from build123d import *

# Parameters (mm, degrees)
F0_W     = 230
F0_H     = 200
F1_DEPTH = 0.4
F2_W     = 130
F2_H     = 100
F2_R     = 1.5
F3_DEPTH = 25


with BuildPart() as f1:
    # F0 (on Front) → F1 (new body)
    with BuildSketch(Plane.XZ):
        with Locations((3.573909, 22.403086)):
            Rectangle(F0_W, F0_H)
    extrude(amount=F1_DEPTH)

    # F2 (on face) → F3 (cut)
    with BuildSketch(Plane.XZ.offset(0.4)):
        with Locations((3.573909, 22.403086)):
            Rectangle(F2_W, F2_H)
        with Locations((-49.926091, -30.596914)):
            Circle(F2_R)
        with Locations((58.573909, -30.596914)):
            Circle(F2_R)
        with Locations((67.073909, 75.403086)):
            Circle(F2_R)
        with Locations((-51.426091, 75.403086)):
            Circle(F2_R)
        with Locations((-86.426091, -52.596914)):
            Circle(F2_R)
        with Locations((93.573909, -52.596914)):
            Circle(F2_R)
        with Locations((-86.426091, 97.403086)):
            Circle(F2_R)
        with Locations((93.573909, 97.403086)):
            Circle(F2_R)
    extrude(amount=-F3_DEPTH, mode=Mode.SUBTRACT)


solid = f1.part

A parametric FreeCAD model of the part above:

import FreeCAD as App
import Part
import Sketcher
from FreeCAD import Vector
Q = App.Units.Quantity

doc = App.newDocument("Part")
body = doc.addObject("PartDesign::Body", "Body")

# Sketch on XZ plane
sketch1 = body.newObject("Sketcher::SketchObject", "Sketch")
sketch1.AttachmentSupport = (doc.getObject("XZ_Plane"), [""])
sketch1.MapMode = "FlatFace"
sketch1.addGeometry(Part.LineSegment(Vector(-111.426091, 122.403086, 0), Vector(-111.426091, -77.596914, 0)), False)
sketch1.addGeometry(Part.LineSegment(Vector(-111.426091, -77.596914, 0), Vector(118.573909, -77.596914, 0)), False)
sketch1.addGeometry(Part.LineSegment(Vector(118.573909, -77.596914, 0), Vector(118.573909, 122.403086, 0)), False)
sketch1.addGeometry(Part.LineSegment(Vector(118.573909, 122.403086, 0), Vector(-111.426091, 122.403086, 0)), False)
sketch1.addConstraint(Sketcher.Constraint("Coincident", 0, 2, 1, 1))
sketch1.addConstraint(Sketcher.Constraint("Coincident", 1, 2, 2, 1))
sketch1.addConstraint(Sketcher.Constraint("Coincident", 2, 2, 3, 1))
sketch1.addConstraint(Sketcher.Constraint("Coincident", 3, 2, 0, 1))
sketch1.addConstraint(Sketcher.Constraint("Vertical", 0))
sketch1.addConstraint(Sketcher.Constraint("Horizontal", 1))
sketch1.addConstraint(Sketcher.Constraint("Vertical", 2))
sketch1.addConstraint(Sketcher.Constraint("Horizontal", 3))
sketch1.addConstraint(Sketcher.Constraint("DistanceX", 1, 1, 1, 2, Q("230 mm")))
sketch1.addConstraint(Sketcher.Constraint("DistanceY", 0, 2, 0, 1, Q("200 mm")))
sketch1.addConstraint(Sketcher.Constraint("DistanceX", 0, 2, -1, 1, Q("111.426091 mm")))
sketch1.addConstraint(Sketcher.Constraint("DistanceY", 0, 2, -1, 1, Q("77.596914 mm")))
pad1 = body.newObject("PartDesign::Pad", "Pad")
pad1.Profile = sketch1
pad1.Length = 0.4

# Sketch on XZ plane
sketch2 = body.newObject("Sketcher::SketchObject", "Sketch001")
sketch2.AttachmentSupport = (doc.getObject("XZ_Plane"), [""])
sketch2.MapMode = "FlatFace"
sketch2.AttachmentOffset = App.Placement(Vector(0, 0, 0.4), App.Rotation())
sketch2.addGeometry(Part.LineSegment(Vector(-61.426091, 72.403086, 0), Vector(-61.426091, -27.596914, 0)), False)
sketch2.addGeometry(Part.LineSegment(Vector(-61.426091, -27.596914, 0), Vector(68.573909, -27.596914, 0)), False)
sketch2.addGeometry(Part.LineSegment(Vector(68.573909, -27.596914, 0), Vector(68.573909, 72.403086, 0)), False)
sketch2.addGeometry(Part.LineSegment(Vector(68.573909, 72.403086, 0), Vector(-61.426091, 72.403086, 0)), False)
sketch2.addGeometry(Part.Circle(Vector(-49.926091, -30.596914, 0), Vector(0, 0, 1), 1.5), False)
sketch2.addGeometry(Part.Circle(Vector(58.573909, -30.596914, 0), Vector(0, 0, 1), 1.5), False)
sketch2.addGeometry(Part.Circle(Vector(67.073909, 75.403086, 0), Vector(0, 0, 1), 1.5), False)
sketch2.addGeometry(Part.Circle(Vector(-51.426091, 75.403086, 0), Vector(0, 0, 1), 1.5), False)
sketch2.addGeometry(Part.Circle(Vector(-86.426091, -52.596914, 0), Vector(0, 0, 1), 1.5), False)
sketch2.addGeometry(Part.Circle(Vector(93.573909, -52.596914, 0), Vector(0, 0, 1), 1.5), False)
sketch2.addGeometry(Part.Circle(Vector(-86.426091, 97.403086, 0), Vector(0, 0, 1), 1.5), False)
sketch2.addGeometry(Part.Circle(Vector(93.573909, 97.403086, 0), Vector(0, 0, 1), 1.5), False)
sketch2.addConstraint(Sketcher.Constraint("Coincident", 0, 2, 1, 1))
sketch2.addConstraint(Sketcher.Constraint("Coincident", 1, 2, 2, 1))
sketch2.addConstraint(Sketcher.Constraint("Coincident", 2, 2, 3, 1))
sketch2.addConstraint(Sketcher.Constraint("Coincident", 3, 2, 0, 1))
sketch2.addConstraint(Sketcher.Constraint("Vertical", 0))
sketch2.addConstraint(Sketcher.Constraint("Horizontal", 1))
sketch2.addConstraint(Sketcher.Constraint("Vertical", 2))
sketch2.addConstraint(Sketcher.Constraint("Horizontal", 3))
sketch2.addConstraint(Sketcher.Constraint("Equal", 4, 5))
sketch2.addConstraint(Sketcher.Constraint("Equal", 5, 6))
sketch2.addConstraint(Sketcher.Constraint("Equal", 6, 7))
sketch2.addConstraint(Sketcher.Constraint("Equal", 7, 8))
sketch2.addConstraint(Sketcher.Constraint("Equal", 8, 9))
sketch2.addConstraint(Sketcher.Constraint("Equal", 9, 10))
sketch2.addConstraint(Sketcher.Constraint("Equal", 10, 11))
sketch2.addConstraint(Sketcher.Constraint("Horizontal", 4, 3, 5, 3))
sketch2.addConstraint(Sketcher.Constraint("Horizontal", 6, 3, 7, 3))
sketch2.addConstraint(Sketcher.Constraint("Horizontal", 8, 3, 9, 3))
sketch2.addConstraint(Sketcher.Constraint("Horizontal", 10, 3, 11, 3))
sketch2.addConstraint(Sketcher.Constraint("Vertical", 8, 3, 10, 3))
sketch2.addConstraint(Sketcher.Constraint("Vertical", 9, 3, 11, 3))
sketch2.addConstraint(Sketcher.Constraint("Diameter", 4, Q("3 mm")))
sketch2.addConstraint(Sketcher.Constraint("DistanceX", 1, 1, 1, 2, Q("130 mm")))
sketch2.addConstraint(Sketcher.Constraint("DistanceY", 0, 2, 0, 1, Q("100 mm")))
sketch2.addConstraint(Sketcher.Constraint("DistanceY", 5, 3, 6, 3, Q("106 mm")))
sketch2.addConstraint(Sketcher.Constraint("DistanceX", 4, 3, 6, 3, Q("117 mm")))
sketch2.addConstraint(Sketcher.Constraint("DistanceX", 7, 3, 5, 3, Q("110 mm")))
sketch2.addConstraint(Sketcher.Constraint("DistanceY", 8, 3, 4, 3, Q("22 mm")))
sketch2.addConstraint(Sketcher.Constraint("DistanceX", 8, 3, 7, 3, Q("35 mm")))
sketch2.addConstraint(Sketcher.Constraint("DistanceX", 5, 3, 9, 3, Q("35 mm")))
sketch2.addConstraint(Sketcher.Constraint("DistanceY", 7, 3, 10, 3, Q("22 mm")))
sketch2.addConstraint(Sketcher.Constraint("DistanceY", 4, 3, 0, 2, Q("3 mm")))
sketch2.addConstraint(Sketcher.Constraint("DistanceX", 8, 3, 0, 2, Q("25 mm")))
sketch2.addConstraint(Sketcher.Constraint("DistanceX", 4, 3, 5, 3, Q("108.5 mm")))
sketch2.addConstraint(Sketcher.Constraint("DistanceX", 4, 3, -1, 1, Q("49.926091 mm")))
sketch2.addConstraint(Sketcher.Constraint("DistanceY", 4, 3, -1, 1, Q("30.596914 mm")))
pocket1 = body.newObject("PartDesign::Pocket", "Pocket")
pocket1.Profile = sketch2
pocket1.Length = 25

doc.recompute()
